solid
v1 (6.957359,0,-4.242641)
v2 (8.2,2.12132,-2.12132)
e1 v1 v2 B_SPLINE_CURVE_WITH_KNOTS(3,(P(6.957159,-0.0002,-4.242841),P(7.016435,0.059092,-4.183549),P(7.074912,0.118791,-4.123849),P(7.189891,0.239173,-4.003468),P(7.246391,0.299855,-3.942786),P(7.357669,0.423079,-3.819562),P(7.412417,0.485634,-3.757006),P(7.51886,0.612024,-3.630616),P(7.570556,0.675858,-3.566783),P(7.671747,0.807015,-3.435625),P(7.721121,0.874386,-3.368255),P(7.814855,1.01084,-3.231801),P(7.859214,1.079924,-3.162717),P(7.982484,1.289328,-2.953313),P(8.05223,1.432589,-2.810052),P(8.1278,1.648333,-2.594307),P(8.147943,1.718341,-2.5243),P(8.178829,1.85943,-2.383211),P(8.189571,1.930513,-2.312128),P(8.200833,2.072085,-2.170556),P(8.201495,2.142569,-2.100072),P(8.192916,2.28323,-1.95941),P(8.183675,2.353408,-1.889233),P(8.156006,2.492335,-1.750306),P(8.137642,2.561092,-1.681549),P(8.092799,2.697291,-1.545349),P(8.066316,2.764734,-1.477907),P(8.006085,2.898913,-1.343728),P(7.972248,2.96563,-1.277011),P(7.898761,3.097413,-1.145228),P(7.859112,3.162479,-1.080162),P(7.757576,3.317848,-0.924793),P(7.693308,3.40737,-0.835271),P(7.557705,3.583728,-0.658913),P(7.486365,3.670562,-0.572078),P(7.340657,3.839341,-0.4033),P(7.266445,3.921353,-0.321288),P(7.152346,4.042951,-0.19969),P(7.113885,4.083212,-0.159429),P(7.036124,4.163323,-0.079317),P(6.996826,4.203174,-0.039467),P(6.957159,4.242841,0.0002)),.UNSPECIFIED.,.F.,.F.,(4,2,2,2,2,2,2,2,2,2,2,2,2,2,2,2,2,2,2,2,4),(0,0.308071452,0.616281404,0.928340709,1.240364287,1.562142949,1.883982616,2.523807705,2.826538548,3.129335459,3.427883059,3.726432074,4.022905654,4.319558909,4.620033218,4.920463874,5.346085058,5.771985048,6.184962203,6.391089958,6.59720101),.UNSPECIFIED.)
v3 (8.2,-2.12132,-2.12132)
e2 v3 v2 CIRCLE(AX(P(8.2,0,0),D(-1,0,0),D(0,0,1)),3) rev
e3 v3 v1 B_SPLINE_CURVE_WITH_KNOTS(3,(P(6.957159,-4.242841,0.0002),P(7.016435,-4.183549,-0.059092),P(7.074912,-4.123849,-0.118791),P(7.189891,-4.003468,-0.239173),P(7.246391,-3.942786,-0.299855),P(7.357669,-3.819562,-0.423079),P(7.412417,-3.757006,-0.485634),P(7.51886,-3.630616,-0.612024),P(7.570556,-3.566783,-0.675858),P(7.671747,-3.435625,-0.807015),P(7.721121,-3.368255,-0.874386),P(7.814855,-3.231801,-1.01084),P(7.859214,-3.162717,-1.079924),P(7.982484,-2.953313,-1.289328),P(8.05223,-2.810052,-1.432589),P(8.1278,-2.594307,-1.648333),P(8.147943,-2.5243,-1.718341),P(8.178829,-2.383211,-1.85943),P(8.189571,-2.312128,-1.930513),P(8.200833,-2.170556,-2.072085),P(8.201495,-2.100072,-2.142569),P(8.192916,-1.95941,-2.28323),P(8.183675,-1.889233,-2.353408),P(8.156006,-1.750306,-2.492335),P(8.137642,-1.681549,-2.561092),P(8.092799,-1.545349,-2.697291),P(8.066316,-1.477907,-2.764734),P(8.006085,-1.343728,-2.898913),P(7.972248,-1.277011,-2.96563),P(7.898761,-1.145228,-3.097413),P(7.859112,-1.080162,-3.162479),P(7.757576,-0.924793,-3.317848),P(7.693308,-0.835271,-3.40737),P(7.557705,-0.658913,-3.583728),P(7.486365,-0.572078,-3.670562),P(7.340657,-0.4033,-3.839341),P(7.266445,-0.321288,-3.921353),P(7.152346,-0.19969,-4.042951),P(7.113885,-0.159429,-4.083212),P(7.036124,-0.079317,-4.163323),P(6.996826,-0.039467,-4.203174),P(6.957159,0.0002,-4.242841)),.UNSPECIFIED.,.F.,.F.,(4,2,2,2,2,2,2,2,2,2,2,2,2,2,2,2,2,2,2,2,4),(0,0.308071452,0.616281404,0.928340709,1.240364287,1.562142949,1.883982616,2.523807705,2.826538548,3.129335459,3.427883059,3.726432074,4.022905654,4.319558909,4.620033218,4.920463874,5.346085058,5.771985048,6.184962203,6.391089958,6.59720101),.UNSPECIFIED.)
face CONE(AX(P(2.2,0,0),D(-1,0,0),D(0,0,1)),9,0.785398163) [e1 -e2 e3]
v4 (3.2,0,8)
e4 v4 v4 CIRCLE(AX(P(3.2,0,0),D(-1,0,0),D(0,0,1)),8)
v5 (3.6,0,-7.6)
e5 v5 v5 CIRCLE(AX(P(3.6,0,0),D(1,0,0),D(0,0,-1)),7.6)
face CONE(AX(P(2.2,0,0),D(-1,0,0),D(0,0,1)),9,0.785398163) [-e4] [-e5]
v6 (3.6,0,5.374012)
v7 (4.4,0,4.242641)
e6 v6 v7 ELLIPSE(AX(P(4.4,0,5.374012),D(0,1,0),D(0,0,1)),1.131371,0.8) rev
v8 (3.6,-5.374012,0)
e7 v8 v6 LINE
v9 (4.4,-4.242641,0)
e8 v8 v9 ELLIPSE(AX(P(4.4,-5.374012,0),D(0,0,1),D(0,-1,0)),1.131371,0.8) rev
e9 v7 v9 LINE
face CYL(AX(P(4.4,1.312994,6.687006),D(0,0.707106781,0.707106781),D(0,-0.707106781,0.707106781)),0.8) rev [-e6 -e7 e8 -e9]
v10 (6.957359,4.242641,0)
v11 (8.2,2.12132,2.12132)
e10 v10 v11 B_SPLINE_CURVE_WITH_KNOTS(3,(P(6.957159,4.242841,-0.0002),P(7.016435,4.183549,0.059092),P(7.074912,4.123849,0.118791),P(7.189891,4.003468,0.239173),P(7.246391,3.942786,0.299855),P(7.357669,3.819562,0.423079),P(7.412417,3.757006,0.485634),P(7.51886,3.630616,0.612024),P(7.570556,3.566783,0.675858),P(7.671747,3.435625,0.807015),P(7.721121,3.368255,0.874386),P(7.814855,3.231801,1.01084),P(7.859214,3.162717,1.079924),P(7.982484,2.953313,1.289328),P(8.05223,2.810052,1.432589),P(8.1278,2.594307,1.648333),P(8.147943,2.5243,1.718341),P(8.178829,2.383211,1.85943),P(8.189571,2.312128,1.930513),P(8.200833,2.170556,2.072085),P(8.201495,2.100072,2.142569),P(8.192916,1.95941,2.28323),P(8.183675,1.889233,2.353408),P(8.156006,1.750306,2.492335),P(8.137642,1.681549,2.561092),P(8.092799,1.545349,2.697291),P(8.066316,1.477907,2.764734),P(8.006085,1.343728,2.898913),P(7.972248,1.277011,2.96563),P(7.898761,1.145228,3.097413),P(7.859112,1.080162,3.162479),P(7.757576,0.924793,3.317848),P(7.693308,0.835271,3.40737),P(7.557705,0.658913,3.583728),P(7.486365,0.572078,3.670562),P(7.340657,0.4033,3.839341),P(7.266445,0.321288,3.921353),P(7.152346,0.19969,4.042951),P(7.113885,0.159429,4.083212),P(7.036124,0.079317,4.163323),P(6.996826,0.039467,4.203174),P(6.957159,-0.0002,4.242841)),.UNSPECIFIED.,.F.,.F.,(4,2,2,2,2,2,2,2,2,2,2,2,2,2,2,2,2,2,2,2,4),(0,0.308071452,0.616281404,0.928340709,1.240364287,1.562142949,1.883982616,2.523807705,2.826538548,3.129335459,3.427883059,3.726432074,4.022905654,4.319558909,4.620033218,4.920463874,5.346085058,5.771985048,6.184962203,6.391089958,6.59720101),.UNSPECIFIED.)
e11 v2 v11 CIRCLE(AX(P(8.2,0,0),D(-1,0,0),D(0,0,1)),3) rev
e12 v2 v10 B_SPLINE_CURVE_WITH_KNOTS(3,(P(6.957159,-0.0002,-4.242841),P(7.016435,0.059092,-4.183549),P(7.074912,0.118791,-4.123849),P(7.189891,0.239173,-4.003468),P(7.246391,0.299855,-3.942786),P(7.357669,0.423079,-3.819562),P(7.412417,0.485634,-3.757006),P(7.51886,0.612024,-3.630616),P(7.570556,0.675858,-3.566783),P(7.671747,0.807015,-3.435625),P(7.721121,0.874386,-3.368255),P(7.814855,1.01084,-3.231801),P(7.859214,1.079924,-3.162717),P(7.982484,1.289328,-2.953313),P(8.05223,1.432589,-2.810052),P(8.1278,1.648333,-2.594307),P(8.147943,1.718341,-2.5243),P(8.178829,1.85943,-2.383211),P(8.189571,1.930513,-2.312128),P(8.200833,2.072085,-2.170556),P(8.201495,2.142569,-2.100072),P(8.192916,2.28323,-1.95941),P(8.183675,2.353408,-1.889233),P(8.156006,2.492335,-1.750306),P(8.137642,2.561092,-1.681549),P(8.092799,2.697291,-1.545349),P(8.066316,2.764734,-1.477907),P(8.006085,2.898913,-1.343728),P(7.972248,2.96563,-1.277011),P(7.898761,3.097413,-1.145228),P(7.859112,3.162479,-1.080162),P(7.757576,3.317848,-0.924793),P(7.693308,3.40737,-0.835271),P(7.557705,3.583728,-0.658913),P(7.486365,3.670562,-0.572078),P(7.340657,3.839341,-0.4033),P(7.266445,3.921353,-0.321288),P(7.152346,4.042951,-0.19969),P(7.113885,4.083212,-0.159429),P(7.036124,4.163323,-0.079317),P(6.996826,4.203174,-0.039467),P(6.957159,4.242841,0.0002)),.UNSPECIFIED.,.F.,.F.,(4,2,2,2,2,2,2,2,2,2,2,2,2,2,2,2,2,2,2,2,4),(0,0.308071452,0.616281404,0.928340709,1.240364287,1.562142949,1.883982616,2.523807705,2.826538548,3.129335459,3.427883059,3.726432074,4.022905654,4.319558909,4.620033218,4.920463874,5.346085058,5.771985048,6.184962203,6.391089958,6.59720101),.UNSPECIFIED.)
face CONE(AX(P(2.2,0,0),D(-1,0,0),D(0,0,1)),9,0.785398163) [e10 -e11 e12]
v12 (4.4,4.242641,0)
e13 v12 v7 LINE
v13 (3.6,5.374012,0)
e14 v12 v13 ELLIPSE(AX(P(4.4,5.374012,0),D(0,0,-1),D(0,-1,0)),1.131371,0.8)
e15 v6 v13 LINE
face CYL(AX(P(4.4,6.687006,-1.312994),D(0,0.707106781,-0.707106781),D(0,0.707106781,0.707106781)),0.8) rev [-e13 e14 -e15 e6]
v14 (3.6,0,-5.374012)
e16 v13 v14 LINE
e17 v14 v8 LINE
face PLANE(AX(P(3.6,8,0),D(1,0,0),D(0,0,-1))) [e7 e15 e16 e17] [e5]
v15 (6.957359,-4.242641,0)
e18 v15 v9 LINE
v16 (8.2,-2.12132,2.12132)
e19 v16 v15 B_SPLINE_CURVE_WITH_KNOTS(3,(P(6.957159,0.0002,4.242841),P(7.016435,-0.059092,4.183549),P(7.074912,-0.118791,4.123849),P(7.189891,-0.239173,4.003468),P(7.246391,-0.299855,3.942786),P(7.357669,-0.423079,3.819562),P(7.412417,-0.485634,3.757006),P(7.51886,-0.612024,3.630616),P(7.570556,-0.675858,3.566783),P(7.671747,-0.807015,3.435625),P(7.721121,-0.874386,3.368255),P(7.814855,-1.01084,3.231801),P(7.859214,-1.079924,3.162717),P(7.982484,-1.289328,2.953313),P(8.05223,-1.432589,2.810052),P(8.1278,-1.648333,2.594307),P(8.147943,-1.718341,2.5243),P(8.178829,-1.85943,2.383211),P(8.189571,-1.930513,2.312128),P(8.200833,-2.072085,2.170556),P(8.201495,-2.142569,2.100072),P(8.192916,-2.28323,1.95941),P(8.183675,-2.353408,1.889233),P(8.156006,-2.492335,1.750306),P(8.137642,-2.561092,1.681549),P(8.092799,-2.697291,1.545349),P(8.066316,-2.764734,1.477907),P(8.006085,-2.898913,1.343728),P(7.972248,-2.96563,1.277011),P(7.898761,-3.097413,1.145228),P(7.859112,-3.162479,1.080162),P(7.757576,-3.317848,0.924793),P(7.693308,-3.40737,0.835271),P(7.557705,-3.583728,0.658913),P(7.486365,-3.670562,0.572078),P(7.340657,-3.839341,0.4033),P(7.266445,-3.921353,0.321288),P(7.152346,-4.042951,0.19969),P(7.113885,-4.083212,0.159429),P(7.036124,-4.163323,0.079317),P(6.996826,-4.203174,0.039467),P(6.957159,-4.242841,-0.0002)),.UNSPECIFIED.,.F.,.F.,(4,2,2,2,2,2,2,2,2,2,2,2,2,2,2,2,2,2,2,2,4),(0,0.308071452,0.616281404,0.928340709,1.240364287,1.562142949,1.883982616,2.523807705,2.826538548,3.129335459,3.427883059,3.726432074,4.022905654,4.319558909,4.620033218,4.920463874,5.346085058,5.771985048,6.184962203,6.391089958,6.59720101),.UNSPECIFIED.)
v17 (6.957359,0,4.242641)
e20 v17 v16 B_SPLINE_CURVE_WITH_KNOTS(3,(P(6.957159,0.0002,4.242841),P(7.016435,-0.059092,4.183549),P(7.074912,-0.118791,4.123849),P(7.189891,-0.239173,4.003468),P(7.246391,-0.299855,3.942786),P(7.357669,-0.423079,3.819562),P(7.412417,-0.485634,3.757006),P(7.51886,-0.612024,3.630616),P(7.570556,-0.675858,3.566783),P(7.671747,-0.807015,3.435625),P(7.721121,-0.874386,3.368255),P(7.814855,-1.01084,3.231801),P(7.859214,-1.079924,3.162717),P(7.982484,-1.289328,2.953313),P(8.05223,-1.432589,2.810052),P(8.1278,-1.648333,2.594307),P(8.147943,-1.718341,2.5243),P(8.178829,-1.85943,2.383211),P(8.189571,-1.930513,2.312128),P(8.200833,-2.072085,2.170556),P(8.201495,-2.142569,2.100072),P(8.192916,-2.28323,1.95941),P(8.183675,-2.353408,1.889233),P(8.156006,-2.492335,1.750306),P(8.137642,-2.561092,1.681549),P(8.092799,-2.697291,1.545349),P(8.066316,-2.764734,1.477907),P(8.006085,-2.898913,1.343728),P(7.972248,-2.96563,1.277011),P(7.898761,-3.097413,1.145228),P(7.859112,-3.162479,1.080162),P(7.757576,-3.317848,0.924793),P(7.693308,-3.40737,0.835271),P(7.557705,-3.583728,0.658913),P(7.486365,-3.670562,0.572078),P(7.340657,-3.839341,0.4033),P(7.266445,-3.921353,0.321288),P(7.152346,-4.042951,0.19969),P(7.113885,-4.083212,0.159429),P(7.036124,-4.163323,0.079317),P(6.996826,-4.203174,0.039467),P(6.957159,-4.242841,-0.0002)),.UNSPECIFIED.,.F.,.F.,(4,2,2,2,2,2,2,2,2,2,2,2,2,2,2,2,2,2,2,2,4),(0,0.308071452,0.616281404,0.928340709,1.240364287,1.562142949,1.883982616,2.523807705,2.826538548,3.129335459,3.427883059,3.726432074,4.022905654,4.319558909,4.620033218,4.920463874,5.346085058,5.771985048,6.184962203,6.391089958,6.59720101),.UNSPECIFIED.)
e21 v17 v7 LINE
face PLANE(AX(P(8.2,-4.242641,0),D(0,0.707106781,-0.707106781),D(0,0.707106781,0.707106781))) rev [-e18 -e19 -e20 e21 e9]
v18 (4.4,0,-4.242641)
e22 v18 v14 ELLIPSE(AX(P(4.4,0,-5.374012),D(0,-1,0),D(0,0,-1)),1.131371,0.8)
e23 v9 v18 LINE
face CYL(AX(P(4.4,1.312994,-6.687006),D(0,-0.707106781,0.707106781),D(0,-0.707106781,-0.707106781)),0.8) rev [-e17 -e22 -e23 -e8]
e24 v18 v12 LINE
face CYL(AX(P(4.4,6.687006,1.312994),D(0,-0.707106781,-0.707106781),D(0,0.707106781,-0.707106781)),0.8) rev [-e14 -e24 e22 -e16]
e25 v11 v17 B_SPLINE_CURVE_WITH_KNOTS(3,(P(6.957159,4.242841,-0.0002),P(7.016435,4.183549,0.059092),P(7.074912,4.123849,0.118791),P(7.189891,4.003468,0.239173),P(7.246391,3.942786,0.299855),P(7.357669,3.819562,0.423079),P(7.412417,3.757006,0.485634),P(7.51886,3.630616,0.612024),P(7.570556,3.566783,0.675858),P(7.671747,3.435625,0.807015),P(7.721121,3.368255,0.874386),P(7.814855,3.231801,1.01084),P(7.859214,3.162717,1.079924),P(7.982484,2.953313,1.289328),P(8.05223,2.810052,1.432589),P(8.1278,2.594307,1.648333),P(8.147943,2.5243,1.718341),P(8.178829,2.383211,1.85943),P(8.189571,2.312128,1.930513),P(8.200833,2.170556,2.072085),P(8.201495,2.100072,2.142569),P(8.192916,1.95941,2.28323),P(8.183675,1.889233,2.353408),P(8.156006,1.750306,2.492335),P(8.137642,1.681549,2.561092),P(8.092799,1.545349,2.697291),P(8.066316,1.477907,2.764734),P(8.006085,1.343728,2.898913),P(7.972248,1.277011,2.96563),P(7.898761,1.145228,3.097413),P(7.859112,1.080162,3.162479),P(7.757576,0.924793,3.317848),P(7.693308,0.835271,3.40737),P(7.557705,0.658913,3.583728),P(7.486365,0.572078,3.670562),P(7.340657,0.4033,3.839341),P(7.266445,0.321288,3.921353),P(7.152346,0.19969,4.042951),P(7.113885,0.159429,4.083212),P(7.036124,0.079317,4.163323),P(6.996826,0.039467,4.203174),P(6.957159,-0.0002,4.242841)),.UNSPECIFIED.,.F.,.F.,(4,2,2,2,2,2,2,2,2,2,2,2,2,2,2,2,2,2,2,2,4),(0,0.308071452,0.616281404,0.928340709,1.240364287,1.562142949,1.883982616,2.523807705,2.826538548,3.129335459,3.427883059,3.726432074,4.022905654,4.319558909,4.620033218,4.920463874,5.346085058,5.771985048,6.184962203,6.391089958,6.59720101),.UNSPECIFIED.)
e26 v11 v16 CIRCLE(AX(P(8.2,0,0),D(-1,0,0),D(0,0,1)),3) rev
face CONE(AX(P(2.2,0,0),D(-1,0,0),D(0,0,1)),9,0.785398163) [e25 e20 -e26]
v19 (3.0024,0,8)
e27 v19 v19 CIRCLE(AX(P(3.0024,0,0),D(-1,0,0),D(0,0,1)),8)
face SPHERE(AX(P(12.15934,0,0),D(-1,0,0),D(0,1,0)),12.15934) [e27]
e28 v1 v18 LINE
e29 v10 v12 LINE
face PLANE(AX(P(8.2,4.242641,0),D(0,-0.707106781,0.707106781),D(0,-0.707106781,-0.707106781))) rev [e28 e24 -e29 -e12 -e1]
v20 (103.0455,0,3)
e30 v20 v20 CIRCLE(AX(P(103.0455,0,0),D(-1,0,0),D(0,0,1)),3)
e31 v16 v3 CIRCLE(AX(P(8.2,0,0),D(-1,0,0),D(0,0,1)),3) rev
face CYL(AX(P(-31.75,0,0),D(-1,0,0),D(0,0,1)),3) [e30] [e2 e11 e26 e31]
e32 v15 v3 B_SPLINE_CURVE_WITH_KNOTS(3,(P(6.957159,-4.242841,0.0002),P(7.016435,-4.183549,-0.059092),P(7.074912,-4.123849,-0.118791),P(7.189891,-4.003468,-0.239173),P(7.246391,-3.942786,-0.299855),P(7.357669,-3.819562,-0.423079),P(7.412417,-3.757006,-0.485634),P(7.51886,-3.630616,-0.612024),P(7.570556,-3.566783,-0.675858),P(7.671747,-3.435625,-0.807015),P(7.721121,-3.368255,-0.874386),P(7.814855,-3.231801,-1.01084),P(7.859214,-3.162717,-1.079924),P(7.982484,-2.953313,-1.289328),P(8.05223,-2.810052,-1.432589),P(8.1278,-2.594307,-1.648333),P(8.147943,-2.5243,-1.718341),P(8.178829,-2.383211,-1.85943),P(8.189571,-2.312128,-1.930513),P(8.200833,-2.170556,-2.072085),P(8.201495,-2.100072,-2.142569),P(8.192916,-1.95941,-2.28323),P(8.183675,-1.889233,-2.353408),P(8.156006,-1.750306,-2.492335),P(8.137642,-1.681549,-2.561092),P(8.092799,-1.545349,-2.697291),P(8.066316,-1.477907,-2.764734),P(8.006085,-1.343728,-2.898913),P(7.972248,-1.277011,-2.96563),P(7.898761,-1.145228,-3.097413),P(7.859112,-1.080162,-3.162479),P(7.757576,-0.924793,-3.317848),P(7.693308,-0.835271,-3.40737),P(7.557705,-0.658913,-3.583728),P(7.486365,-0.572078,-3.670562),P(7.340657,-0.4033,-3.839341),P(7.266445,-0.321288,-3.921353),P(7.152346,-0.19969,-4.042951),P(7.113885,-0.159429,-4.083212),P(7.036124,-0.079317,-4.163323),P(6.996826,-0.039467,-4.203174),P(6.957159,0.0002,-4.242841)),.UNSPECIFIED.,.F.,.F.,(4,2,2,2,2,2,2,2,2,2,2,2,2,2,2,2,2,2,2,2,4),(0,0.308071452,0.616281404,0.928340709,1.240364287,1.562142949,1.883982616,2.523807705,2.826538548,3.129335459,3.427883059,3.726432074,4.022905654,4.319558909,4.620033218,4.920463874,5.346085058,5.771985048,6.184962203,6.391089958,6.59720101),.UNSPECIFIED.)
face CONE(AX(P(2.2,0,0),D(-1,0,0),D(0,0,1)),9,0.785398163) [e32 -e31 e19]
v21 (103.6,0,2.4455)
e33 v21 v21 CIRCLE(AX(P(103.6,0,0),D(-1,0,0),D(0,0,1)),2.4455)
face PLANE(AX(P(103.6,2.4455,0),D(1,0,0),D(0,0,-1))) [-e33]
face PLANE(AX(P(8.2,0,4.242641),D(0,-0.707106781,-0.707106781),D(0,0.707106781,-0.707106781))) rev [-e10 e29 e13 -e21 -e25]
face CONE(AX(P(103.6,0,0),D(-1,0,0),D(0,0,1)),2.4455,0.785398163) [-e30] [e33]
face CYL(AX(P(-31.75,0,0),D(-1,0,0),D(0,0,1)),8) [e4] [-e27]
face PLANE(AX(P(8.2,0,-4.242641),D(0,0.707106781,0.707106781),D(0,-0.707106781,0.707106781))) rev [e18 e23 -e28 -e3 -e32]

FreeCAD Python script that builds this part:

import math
import FreeCAD as App
import Part
import Sketcher
Q = App.Units.Quantity


def edges_at(feature, points):
    """Names of the edges that pass closest to the given points."""
    edges = feature.Shape.Edges
    near = lambda p: min(range(len(edges)), key=lambda i: edges[i].distToShape(Part.Vertex(*p))[0])
    return sorted({f"Edge{near(p) + 1}" for p in points})

doc = App.newDocument("Part")
params = doc.addObject("Spreadsheet::Sheet", "Params")
for row, (alias, value) in enumerate([
    ("sketch1_height", "5 mm"),
    ("sketch1_width", "103.6 mm"),
    ("revolution_angle", "360 deg"),
    ("sketch2_length", "6 mm"),
    ("pad1_length", "4.6 mm"),
    ("sketch3_width", "5 mm"),
    ("sketch3_width2", "11 mm"),
    ("sketch3_height", "6 mm"),
    ("groove_angle", "360 deg"),
    ("fillet_radius", "0.8 mm"),
], start=1):
    params.set(f"A{row}", alias)
    params.set(f"B{row}", "=" + value)
    params.setAlias(f"B{row}", alias)

body = doc.addObject("PartDesign::Body", "Body")

sketch1 = body.newObject("Sketcher::SketchObject", "Sketch")
sketch1.AttachmentSupport = (doc.getObject("XY_Plane"), [""])
sketch1.MapMode = "FlatFace"
sketch1.addGeometry([
    Part.LineSegment(App.Vector(3.6, 8, 0), App.Vector(3, 8, 0)),
    Part.ArcOfCircle(Part.Circle(App.Vector(12.2, 0, 0), App.Vector(0, 0, 1), 12.2), math.radians(139), math.radians(180)),
    Part.LineSegment(App.Vector(0, 0, 0), App.Vector(103.6, 0, 0)),
    Part.LineSegment(App.Vector(103.6, 0, 0), App.Vector(103.6, 2.4, 0)),
    Part.LineSegment(App.Vector(103.6, 2.4, 0), App.Vector(103, 3, 0)),
    Part.LineSegment(App.Vector(103, 3, 0), App.Vector(3.6, 3, 0)),
    Part.LineSegment(App.Vector(3.6, 3, 0), App.Vector(3.6, 8, 0)),
], False)
sketch1.addConstraint([
    Sketcher.Constraint("Coincident", 0, 2, 1, 1),
    Sketcher.Constraint("Coincident", 1, 2, 2, 1),
    Sketcher.Constraint("Coincident", 2, 2, 3, 1),
    Sketcher.Constraint("Coincident", 3, 2, 4, 1),
    Sketcher.Constraint("Coincident", 4, 2, 5, 1),
    Sketcher.Constraint("Coincident", 5, 2, 6, 1),
    Sketcher.Constraint("Coincident", 6, 2, 0, 1),
    Sketcher.Constraint("Horizontal", 0),
    Sketcher.Constraint("Horizontal", 2),
    Sketcher.Constraint("Vertical", 3),
    Sketcher.Constraint("Horizontal", 5),
    Sketcher.Constraint("Vertical", 6),
    Sketcher.Constraint("Coincident", 1, 2, -1, 1),
    Sketcher.Constraint("PointOnObject", 1, 3, -1),
    Sketcher.Constraint("DistanceY", 6, 1, 6, 2, Q("5 mm")),
    Sketcher.Constraint("Angle", 4, Q("135 deg")),
    Sketcher.Constraint("DistanceX", 2, 1, 2, 2, Q("103.6 mm")),
    Sketcher.Constraint("DistanceY", -1, 1, 0, 2, Q("8 mm")),
    Sketcher.Constraint("DistanceX", 5, 2, 3, 2, Q("100 mm")),
    Sketcher.Constraint("Radius", 1, Q("12.15934 mm")),
    Sketcher.Constraint("DistanceX", 5, 2, 5, 1, Q("99.4455 mm")),
])
sketch1.setExpression("Constraints[14]", "Params.sketch1_height")
sketch1.setExpression("Constraints[16]", "Params.sketch1_width")
revolution = body.newObject("PartDesign::Revolution", "Revolution")
revolution.Profile = sketch1
revolution.ReferenceAxis = (sketch1, ["H_Axis"])
revolution.setExpression("Angle", "Params.revolution_angle")

sketch2 = body.newObject("Sketcher::SketchObject", "Sketch001")
sketch2.AttachmentSupport = (doc.getObject("YZ_Plane"), [""])
sketch2.MapMode = "FlatFace"
sketch2.AttachmentOffset = App.Placement(App.Vector(0, 0, 3.6), App.Rotation())
sketch2.addGeometry([
    Part.LineSegment(App.Vector(0, -4, 0), App.Vector(4, 0, 0)),
    Part.LineSegment(App.Vector(4, 0, 0), App.Vector(0, 4, 0)),
    Part.LineSegment(App.Vector(0, 4, 0), App.Vector(-4, 0, 0)),
    Part.LineSegment(App.Vector(-4, 0, 0), App.Vector(0, -4, 0)),
], False)
sketch2.addConstraint([
    Sketcher.Constraint("Coincident", 0, 2, 1, 1),
    Sketcher.Constraint("Coincident", 1, 2, 2, 1),
    Sketcher.Constraint("Coincident", 2, 2, 3, 1),
    Sketcher.Constraint("Coincident", 3, 2, 0, 1),
    Sketcher.Constraint("Symmetric", 0, 2, 2, 2, -1, 1),
    Sketcher.Constraint("Symmetric", 1, 2, 3, 2, -1, 1),
    Sketcher.Constraint("PointOnObject", 0, 2, -1),
    Sketcher.Constraint("PointOnObject", 1, 2, -2),
    Sketcher.Constraint("Perpendicular", 0, 1),
    Sketcher.Constraint("Distance", 0, Q("6 mm")),
])
sketch2.setExpression("Constraints[9]", "Params.sketch2_length")
pad1 = body.newObject("PartDesign::Pad", "Pad")
pad1.Profile = sketch2
pad1.setExpression("Length", "Params.pad1_length")

sketch3 = body.newObject("Sketcher::SketchObject", "Sketch002")
sketch3.AttachmentSupport = (doc.getObject("XY_Plane"), [""])
sketch3.MapMode = "FlatFace"
sketch3.addGeometry([
    Part.LineSegment(App.Vector(8, 3, 0), App.Vector(13, 3, 0)),
    Part.LineSegment(App.Vector(13, 3, 0), App.Vector(13, 9, 0)),
    Part.LineSegment(App.Vector(13, 9, 0), App.Vector(2, 9, 0)),
    Part.LineSegment(App.Vector(2, 9, 0), App.Vector(8, 3, 0)),
], False)
sketch3.addConstraint([
    Sketcher.Constraint("Coincident", 0, 2, 1, 1),
    Sketcher.Constraint("Coincident", 1, 2, 2, 1),
    Sketcher.Constraint("Coincident", 2, 2, 3, 1),
    Sketcher.Constraint("Coincident", 3, 2, 0, 1),
    Sketcher.Constraint("Horizontal", 0),
    Sketcher.Constraint("Vertical", 1),
    Sketcher.Constraint("Horizontal", 2),
    Sketcher.Constraint("DistanceX", 0, 1, 0, 2, Q("5 mm")),
    Sketcher.Constraint("DistanceX", 2, 2, 2, 1, Q("11 mm")),
    Sketcher.Constraint("DistanceY", 1, 1, 1, 2, Q("6 mm")),
    Sketcher.Constraint("DistanceY", -1, 1, 0, 2, Q("3 mm")),
    Sketcher.Constraint("DistanceX", -1, 1, 0, 2, Q("13.2 mm")),
])
sketch3.setExpression("Constraints[7]", "Params.sketch3_width")
sketch3.setExpression("Constraints[8]", "Params.sketch3_width2")
sketch3.setExpression("Constraints[9]", "Params.sketch3_height")
groove = body.newObject("PartDesign::Groove", "Groove")
groove.Profile = sketch3
groove.ReferenceAxis = (sketch3, ["H_Axis"])
groove.setExpression("Angle", "Params.groove_angle")
doc.recompute()

fillet = body.newObject("PartDesign::Fillet", "Fillet")
fillet.Base = (groove, edges_at(groove, [
    (3.6, 2.121, -2.121),
    (3.6, -2.121, -2.121),
    (3.6, 2.121, 2.121),
    (3.6, -2.121, 2.121),
]))
fillet.setExpression("Radius", "Params.fillet_radius")

doc.recompute()
